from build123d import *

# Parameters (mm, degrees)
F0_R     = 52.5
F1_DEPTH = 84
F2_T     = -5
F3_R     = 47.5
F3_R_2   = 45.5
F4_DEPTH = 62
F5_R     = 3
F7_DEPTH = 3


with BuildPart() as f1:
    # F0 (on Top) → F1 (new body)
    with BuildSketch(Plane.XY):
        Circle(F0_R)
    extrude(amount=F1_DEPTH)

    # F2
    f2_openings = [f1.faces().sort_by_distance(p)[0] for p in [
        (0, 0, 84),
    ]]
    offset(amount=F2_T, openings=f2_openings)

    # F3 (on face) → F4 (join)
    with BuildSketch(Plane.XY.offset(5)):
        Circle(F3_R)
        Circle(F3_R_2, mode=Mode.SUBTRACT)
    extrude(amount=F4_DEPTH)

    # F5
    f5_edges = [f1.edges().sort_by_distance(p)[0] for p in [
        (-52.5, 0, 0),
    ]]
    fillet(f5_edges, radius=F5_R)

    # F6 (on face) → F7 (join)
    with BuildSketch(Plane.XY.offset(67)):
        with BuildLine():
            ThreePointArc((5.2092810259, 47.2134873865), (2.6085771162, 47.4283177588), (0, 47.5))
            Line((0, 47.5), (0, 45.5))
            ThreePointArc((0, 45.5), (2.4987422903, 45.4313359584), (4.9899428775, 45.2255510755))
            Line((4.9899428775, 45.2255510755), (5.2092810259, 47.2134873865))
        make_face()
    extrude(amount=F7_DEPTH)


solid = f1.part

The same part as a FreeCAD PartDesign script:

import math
import FreeCAD as App
import Part
import Sketcher
Q = App.Units.Quantity


def edges_at(feature, points):
    """Names of the edges that pass closest to the given points."""
    edges = feature.Shape.Edges
    near = lambda p: min(range(len(edges)), key=lambda i: edges[i].distToShape(Part.Vertex(*p))[0])
    return sorted({f"Edge{near(p) + 1}" for p in points})


def faces_at(feature, points):
    """Names of the faces that lie closest to the given points."""
    faces = feature.Shape.Faces
    near = lambda p: min(range(len(faces)), key=lambda i: faces[i].distToShape(Part.Vertex(*p))[0])
    return sorted({f"Face{near(p) + 1}" for p in points})

doc = App.newDocument("Part")
body = doc.addObject("PartDesign::Body", "Body")

# Sketch on XY plane
sketch1 = body.newObject("Sketcher::SketchObject", "Sketch")
sketch1.AttachmentSupport = (doc.getObject("XY_Plane"), [""])
sketch1.MapMode = "FlatFace"
sketch1.addGeometry(Part.Circle(App.Vector(0, 0, 0), App.Vector(0, 0, 1), 52), False)
sketch1.addConstraint([
    Sketcher.Constraint("Coincident", 0, 3, -1, 1),
    Sketcher.Constraint("Diameter", 0, Q("105 mm")),
])
pad1 = body.newObject("PartDesign::Pad", "Pad")
pad1.Profile = sketch1
pad1.Length = 84
doc.recompute()

thickness = body.newObject("PartDesign::Thickness", "Thickness")
thickness.Base = (pad1, faces_at(pad1, [(0, 0, 84)]))
thickness.Value = 5
thickness.Reversed = True
thickness.Join = "Arc"

# Sketch on XY plane
sketch2 = body.newObject("Sketcher::SketchObject", "Sketch001")
sketch2.AttachmentSupport = (doc.getObject("XY_Plane"), [""])
sketch2.MapMode = "FlatFace"
sketch2.AttachmentOffset = App.Placement(App.Vector(0, 0, 5), App.Rotation())
sketch2.addGeometry([
    Part.Circle(App.Vector(0, 0, 0), App.Vector(0, 0, 1), 48),
    Part.Circle(App.Vector(0, 0, 0), App.Vector(0, 0, 1), 46),
], False)
sketch2.addConstraint([
    Sketcher.Constraint("Coincident", 0, 3, -1, 1),
    Sketcher.Constraint("Coincident", 1, 3, -1, 1),
    Sketcher.Constraint("Diameter", 0, Q("95 mm")),
    Sketcher.Constraint("Diameter", 1, Q("91 mm")),
])
pad2 = body.newObject("PartDesign::Pad", "Pad001")
pad2.Profile = sketch2
pad2.Length = 62
doc.recompute()

fillet = body.newObject("PartDesign::Fillet", "Fillet")
fillet.Base = (pad2, edges_at(pad2, [(-52.5, 0, 0)]))
fillet.Radius = 3

# Sketch on XY plane
sketch3 = body.newObject("Sketcher::SketchObject", "Sketch002")
sketch3.AttachmentSupport = (doc.getObject("XY_Plane"), [""])
sketch3.MapMode = "FlatFace"
sketch3.AttachmentOffset = App.Placement(App.Vector(0, 0, 67), App.Rotation())
sketch3.addGeometry([
    Part.ArcOfCircle(Part.Circle(App.Vector(0, 0, 0), App.Vector(0, 0, 1), 47.5), math.radians(83.7), math.radians(90)),
    Part.LineSegment(App.Vector(0, 47.5, 0), App.Vector(0, 45.5, 0)),
    Part.ArcOfCircle(Part.Circle(App.Vector(0, 0, 0), App.Vector(0, 0, 1), 45.5), math.radians(83.7), math.radians(90)),
    Part.LineSegment(App.Vector(5, 45.2, 0), App.Vector(5.2, 47.2, 0)),
], False)
sketch3.addConstraint([
    Sketcher.Constraint("Coincident", 0, 2, 1, 1),
    Sketcher.Constraint("Coincident", 1, 2, 2, 2),
    Sketcher.Constraint("Coincident", 2, 1, 3, 1),
    Sketcher.Constraint("Coincident", 3, 2, 0, 1),
    Sketcher.Constraint("Vertical", 1),
    Sketcher.Constraint("Coincident", 0, 3, -1, 1),
    Sketcher.Constraint("Coincident", 2, 3, -1, 1),
    Sketcher.Constraint("PointOnObject", 0, 2, -2),
    Sketcher.Constraint("Radius", 0, Q("47.5 mm")),
    Sketcher.Constraint("Radius", 2, Q("45.5 mm")),
    Sketcher.Constraint("DistanceY", -1, 1, 2, 1, Q("45.225551 mm")),
    Sketcher.Constraint("DistanceX", -1, 1, 3, 2, Q("5.209281 mm")),
])
pad3 = body.newObject("PartDesign::Pad", "Pad002")
pad3.Profile = sketch3
pad3.Length = 3

doc.recompute()
